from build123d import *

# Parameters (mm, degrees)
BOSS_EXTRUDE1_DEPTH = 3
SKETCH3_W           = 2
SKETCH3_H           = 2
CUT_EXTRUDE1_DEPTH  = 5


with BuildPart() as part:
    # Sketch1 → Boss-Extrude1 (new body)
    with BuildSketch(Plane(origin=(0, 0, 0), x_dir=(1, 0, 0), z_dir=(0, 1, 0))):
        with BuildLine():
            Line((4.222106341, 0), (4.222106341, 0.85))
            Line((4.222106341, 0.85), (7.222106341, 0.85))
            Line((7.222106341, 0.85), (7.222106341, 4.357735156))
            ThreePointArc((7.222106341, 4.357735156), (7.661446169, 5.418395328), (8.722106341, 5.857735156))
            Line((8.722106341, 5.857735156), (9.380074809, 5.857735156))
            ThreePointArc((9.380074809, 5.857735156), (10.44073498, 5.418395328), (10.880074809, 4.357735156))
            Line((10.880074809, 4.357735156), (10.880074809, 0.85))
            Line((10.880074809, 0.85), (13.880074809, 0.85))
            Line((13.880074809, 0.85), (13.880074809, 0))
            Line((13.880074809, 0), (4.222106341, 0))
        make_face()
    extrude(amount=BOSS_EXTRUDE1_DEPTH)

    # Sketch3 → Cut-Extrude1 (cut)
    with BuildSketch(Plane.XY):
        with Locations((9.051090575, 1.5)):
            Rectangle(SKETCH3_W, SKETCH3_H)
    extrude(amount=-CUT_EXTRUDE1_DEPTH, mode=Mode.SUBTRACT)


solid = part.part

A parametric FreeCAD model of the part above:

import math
import FreeCAD as App
import Part
import Sketcher
from FreeCAD import Vector
Q = App.Units.Quantity

doc = App.newDocument("Part")
body = doc.addObject("PartDesign::Body", "Body")

# Sketch on XZ plane
sketch1 = body.newObject("Sketcher::SketchObject", "Sketch")
sketch1.AttachmentSupport = (doc.getObject("XZ_Plane"), [""])
sketch1.MapMode = "FlatFace"
sketch1.addGeometry([
    Part.LineSegment(Vector(4.2, -0.8, 0), Vector(4.2, 0, 0)),  # 0
    Part.LineSegment(Vector(4.2, 0, 0), Vector(13.9, 0, 0)),  # 1
    Part.LineSegment(Vector(13.9, 0, 0), Vector(13.9, -0.8, 0)),  # 2
    Part.LineSegment(Vector(13.9, -0.8, 0), Vector(10.9, -0.8, 0)),  # 3
    Part.LineSegment(Vector(10.9, -0.8, 0), Vector(10.9, -4.4, 0)),  # 4
    Part.ArcOfCircle(Part.Circle(Vector(9.4, -4.4, 0), Vector(0, 0, 1), 1.5), math.radians(-90), math.radians(0)),  # 5
    Part.LineSegment(Vector(9.4, -5.9, 0), Vector(8.7, -5.9, 0)),  # 6
    Part.ArcOfCircle(Part.Circle(Vector(8.7, -4.4, 0), Vector(0, 0, 1), 1.5), math.radians(180), math.radians(270)),  # 7
    Part.LineSegment(Vector(7.2, -4.4, 0), Vector(7.2, -0.8, 0)),  # 8
    Part.LineSegment(Vector(7.2, -0.8, 0), Vector(4.2, -0.8, 0)),  # 9
], False)
sketch1.addConstraint([
    Sketcher.Constraint("Coincident", 0, 2, 1, 1),
    Sketcher.Constraint("Coincident", 1, 2, 2, 1),
    Sketcher.Constraint("Coincident", 2, 2, 3, 1),
    Sketcher.Constraint("Coincident", 3, 2, 4, 1),
    Sketcher.Constraint("Tangent", 4, 2, 5, 2),
    Sketcher.Constraint("Tangent", 5, 1, 6, 1),
    Sketcher.Constraint("Tangent", 6, 2, 7, 2),
    Sketcher.Constraint("Tangent", 7, 1, 8, 1),
    Sketcher.Constraint("Coincident", 8, 2, 9, 1),
    Sketcher.Constraint("Coincident", 9, 2, 0, 1),
    Sketcher.Constraint("Vertical", 0),
    Sketcher.Constraint("Horizontal", 1),
    Sketcher.Constraint("Vertical", 2),
    Sketcher.Constraint("Horizontal", 3),
    Sketcher.Constraint("Vertical", 4),
    Sketcher.Constraint("Horizontal", 6),
    Sketcher.Constraint("Vertical", 8),
    Sketcher.Constraint("Horizontal", 9),
    Sketcher.Constraint("Equal", 5, 7),
    Sketcher.Constraint("PointOnObject", 0, 2, -1),
    Sketcher.Constraint("Horizontal", 3, 2, 8, 2),
    Sketcher.Constraint("Equal", 3, 9),
    Sketcher.Constraint("Radius", 5, Q("1.5 mm")),
    Sketcher.Constraint("DistanceX", 3, 2, 3, 1, Q("3 mm")),
    Sketcher.Constraint("DistanceY", 0, 1, 0, 2, Q("0.85 mm")),
    Sketcher.Constraint("DistanceX", 1, 1, 1, 2, Q("9.657968 mm")),
    Sketcher.Constraint("DistanceY", 4, 2, 4, 1, Q("3.507735 mm")),
    Sketcher.Constraint("DistanceX", -1, 1, 5, 3, Q("9.380075 mm")),
])
pad1 = body.newObject("PartDesign::Pad", "Pad")
pad1.Profile = sketch1
pad1.Length = 3
pad1.Reversed = True

# Sketch on XY plane
sketch2 = body.newObject("Sketcher::SketchObject", "Sketch001")
sketch2.AttachmentSupport = (doc.getObject("XY_Plane"), [""])
sketch2.MapMode = "FlatFace"
sketch2.addGeometry([
    Part.LineSegment(Vector(8.1, 2.5, 0), Vector(8.1, 0.5, 0)),
    Part.LineSegment(Vector(8.1, 0.5, 0), Vector(10.1, 0.5, 0)),
    Part.LineSegment(Vector(10.1, 0.5, 0), Vector(10.1, 2.5, 0)),
    Part.LineSegment(Vector(10.1, 2.5, 0), Vector(8.1, 2.5, 0)),
], False)
sketch2.addConstraint([
    Sketcher.Constraint("Coincident", 0, 2, 1, 1),
    Sketcher.Constraint("Coincident", 1, 2, 2, 1),
    Sketcher.Constraint("Coincident", 2, 2, 3, 1),
    Sketcher.Constraint("Coincident", 3, 2, 0, 1),
    Sketcher.Constraint("Vertical", 0),
    Sketcher.Constraint("Horizontal", 1),
    Sketcher.Constraint("Vertical", 2),
    Sketcher.Constraint("Horizontal", 3),
    Sketcher.Constraint("Equal", 3, 0),
    Sketcher.Constraint("DistanceX", 1, 1, 1, 2, Q("2 mm")),
    Sketcher.Constraint("DistanceY", -1, 1, 0, 2, Q("0.5 mm")),
    Sketcher.Constraint("DistanceX", -1, 1, 0, 2, Q("8.051091 mm")),
])
pocket1 = body.newObject("PartDesign::Pocket", "Pocket")
pocket1.Profile = sketch2
pocket1.Length = 5

doc.recompute()
